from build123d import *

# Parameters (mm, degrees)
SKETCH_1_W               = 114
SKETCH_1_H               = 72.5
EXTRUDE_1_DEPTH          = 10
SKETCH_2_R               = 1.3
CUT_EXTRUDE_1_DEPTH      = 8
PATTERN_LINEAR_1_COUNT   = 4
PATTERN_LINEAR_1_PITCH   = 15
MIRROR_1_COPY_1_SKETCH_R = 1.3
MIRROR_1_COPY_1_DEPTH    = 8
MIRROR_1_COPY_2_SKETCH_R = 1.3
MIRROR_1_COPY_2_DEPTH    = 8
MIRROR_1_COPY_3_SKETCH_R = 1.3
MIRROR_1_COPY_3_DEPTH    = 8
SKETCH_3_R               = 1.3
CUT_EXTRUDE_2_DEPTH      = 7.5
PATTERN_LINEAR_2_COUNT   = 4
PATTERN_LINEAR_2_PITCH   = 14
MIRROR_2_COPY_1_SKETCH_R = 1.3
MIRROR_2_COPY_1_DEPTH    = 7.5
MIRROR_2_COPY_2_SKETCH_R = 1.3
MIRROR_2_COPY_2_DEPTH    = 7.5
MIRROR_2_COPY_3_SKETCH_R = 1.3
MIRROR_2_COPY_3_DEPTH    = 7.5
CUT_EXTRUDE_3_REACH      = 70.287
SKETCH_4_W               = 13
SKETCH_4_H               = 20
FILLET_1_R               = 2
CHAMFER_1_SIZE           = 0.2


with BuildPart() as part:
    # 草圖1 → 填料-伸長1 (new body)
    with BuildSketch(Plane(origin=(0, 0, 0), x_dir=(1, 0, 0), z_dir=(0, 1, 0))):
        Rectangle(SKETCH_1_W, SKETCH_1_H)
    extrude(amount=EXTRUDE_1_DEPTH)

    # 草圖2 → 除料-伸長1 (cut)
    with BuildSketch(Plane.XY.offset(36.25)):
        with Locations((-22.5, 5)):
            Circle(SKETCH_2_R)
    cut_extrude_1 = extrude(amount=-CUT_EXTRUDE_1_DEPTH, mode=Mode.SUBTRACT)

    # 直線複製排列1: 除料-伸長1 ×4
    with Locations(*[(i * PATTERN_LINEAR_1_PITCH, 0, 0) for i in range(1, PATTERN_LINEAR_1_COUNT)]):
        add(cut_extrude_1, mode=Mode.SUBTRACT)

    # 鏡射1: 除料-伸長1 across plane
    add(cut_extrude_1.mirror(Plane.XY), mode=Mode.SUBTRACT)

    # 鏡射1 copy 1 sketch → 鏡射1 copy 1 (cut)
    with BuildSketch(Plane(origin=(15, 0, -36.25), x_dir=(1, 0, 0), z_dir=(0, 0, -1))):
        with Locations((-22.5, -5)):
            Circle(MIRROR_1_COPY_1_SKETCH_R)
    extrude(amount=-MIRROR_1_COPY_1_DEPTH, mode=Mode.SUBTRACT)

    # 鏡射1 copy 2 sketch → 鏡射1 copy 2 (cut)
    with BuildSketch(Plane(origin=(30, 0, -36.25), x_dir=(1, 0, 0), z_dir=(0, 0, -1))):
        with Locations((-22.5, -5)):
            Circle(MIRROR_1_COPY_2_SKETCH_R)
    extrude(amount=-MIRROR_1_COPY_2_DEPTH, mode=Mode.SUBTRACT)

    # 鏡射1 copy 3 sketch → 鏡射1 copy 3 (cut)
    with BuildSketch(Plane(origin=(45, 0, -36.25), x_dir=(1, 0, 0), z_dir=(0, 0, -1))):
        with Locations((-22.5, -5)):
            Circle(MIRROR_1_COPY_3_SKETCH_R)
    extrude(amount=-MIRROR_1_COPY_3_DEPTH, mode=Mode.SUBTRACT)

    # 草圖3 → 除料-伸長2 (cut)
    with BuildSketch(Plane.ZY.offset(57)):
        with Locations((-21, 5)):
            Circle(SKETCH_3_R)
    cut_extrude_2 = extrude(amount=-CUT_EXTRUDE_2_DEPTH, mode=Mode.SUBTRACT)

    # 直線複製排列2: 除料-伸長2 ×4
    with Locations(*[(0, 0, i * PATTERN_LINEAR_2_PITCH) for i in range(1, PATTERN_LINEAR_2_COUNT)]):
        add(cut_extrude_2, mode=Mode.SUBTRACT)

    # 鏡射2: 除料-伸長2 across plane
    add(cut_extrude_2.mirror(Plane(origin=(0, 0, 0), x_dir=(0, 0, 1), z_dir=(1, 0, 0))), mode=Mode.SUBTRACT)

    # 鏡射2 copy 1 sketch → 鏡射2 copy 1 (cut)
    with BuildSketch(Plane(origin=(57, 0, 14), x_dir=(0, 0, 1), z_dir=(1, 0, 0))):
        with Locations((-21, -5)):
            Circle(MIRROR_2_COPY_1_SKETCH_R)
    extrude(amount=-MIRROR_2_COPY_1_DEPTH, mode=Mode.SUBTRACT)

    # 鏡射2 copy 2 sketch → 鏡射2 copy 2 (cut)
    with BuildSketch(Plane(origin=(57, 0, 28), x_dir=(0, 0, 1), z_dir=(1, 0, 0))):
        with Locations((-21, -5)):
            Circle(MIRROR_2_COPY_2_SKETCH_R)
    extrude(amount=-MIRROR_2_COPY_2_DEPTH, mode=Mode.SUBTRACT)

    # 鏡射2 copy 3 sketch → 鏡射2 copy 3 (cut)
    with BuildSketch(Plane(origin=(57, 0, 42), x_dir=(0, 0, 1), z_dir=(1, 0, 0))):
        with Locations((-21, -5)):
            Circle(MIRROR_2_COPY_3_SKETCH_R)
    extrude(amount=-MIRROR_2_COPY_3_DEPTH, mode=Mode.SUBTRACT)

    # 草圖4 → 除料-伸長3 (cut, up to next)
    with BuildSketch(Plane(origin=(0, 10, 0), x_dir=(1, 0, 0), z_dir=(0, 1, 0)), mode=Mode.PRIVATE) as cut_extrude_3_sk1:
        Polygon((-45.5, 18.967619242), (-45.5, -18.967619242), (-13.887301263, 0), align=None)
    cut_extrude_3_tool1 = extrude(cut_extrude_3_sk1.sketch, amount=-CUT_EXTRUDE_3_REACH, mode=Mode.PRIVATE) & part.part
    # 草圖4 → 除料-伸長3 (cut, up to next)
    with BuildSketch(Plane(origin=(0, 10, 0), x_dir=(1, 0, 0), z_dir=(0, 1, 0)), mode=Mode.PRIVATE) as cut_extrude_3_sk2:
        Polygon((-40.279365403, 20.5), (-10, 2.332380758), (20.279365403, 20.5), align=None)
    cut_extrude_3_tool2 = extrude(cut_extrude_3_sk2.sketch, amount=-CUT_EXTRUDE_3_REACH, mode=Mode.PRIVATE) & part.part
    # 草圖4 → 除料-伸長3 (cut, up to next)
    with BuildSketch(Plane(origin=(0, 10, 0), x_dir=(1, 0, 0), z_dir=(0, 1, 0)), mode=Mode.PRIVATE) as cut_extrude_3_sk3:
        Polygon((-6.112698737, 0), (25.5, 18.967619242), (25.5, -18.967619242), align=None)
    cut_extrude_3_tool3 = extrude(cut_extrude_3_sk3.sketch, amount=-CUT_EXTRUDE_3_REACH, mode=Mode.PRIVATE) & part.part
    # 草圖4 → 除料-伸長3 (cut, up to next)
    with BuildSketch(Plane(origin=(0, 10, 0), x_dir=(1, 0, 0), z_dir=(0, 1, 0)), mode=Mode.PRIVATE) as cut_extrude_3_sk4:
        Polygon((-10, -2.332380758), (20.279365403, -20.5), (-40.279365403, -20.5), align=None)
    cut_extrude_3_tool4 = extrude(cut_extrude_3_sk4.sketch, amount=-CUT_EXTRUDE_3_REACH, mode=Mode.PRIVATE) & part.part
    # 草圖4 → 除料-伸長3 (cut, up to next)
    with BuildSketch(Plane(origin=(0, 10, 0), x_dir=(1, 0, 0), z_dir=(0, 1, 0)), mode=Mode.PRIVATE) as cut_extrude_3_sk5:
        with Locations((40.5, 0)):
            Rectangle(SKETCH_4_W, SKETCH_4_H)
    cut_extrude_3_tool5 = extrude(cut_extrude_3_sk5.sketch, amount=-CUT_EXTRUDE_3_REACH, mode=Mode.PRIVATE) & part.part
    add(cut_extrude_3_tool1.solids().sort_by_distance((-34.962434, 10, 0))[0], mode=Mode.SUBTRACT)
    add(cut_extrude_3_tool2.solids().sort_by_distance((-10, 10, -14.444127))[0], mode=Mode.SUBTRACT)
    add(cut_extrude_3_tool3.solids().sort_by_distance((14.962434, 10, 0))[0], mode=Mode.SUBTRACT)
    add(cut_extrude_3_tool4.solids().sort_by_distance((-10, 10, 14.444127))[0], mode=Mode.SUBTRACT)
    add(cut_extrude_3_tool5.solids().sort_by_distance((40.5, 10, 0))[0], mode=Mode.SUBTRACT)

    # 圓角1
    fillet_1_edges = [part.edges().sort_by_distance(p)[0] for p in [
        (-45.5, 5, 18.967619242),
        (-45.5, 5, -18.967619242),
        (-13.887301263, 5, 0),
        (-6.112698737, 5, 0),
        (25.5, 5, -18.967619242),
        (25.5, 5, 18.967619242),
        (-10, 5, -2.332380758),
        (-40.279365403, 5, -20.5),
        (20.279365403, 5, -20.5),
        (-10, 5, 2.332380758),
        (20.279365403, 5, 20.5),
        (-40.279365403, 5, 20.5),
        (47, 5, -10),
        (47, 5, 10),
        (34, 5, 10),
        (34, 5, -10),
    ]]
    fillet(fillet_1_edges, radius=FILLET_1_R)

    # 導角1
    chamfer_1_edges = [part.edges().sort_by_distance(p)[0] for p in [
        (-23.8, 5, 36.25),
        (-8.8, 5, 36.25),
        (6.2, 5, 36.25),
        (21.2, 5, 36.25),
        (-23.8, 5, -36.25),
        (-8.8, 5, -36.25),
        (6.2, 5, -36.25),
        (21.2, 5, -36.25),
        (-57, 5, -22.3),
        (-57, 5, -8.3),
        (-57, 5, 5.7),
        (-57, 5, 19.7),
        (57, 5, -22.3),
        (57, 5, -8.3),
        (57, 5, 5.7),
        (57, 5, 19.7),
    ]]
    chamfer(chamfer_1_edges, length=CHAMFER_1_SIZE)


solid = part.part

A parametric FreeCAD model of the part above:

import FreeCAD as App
import Part
import Sketcher

V = App.Vector
Q = App.Units.Quantity


def edges_at(feature, points):
    """Names of the edges that pass closest to the given points."""
    edges = feature.Shape.Edges
    near = lambda p: min(range(len(edges)), key=lambda i: edges[i].distToShape(Part.Vertex(*p))[0])
    return sorted({f"Edge{near(p) + 1}" for p in points})


def add_polygon(sketch, points):
    """Adds a closed chain of lines whose ends are joined by coincident constraints."""
    first, n = sketch.GeometryCount, len(points)
    for a, b in zip(points, points[1:] + points[:1]):
        sketch.addGeometry(Part.LineSegment(App.Vector(*a, 0), App.Vector(*b, 0)), False)
    for i in range(n):
        sketch.addConstraint(Sketcher.Constraint("Coincident", first + i, 2, first + (i + 1) % n, 1))

doc = App.newDocument("Part")
body = doc.addObject("PartDesign::Body", "Body")

# Sketch on XZ plane
sketch1 = doc.addObject("Sketcher::SketchObject", "Sketch")
body.addObject(sketch1)
sketch1.AttachmentSupport = (doc.XZ_Plane, [""])
sketch1.MapMode = "FlatFace"
add_polygon(sketch1, [(-57, -36), (-57, 36), (57, 36), (57, -36)])  # lines 0-3
sketch1.addConstraint(Sketcher.Constraint("Vertical", 0))
sketch1.addConstraint(Sketcher.Constraint("Horizontal", 1))
sketch1.addConstraint(Sketcher.Constraint("Vertical", 2))
sketch1.addConstraint(Sketcher.Constraint("Horizontal", 3))
sketch1.addConstraint(Sketcher.Constraint("Symmetric", 0, 2, 2, 2, -1, 1))
sketch1.addConstraint(Sketcher.Constraint("DistanceX", 1, 1, 1, 2, Q("114 mm")))
sketch1.addConstraint(Sketcher.Constraint("DistanceY", 0, 1, 0, 2, Q("72.5 mm")))
pad1 = doc.addObject("PartDesign::Pad", "Pad")
body.addObject(pad1)
pad1.Profile = sketch1
pad1.Length = 10
pad1.Reversed = True

# Sketch on XY plane
sketch2 = doc.addObject("Sketcher::SketchObject", "Sketch001")
body.addObject(sketch2)
sketch2.AttachmentSupport = (doc.XY_Plane, [""])
sketch2.MapMode = "FlatFace"
sketch2.AttachmentOffset = App.Placement(V(0, 0, 36.25), App.Rotation())
sketch2.addGeometry(Part.Circle(V(-22.5, 5, 0), V(0, 0, 1), 1.3), False)
sketch2.addConstraint(Sketcher.Constraint("Diameter", 0, Q("2.6 mm")))
sketch2.addConstraint(Sketcher.Constraint("DistanceY", -1, 1, 0, 3, Q("5 mm")))
sketch2.addConstraint(Sketcher.Constraint("DistanceX", 0, 3, -1, 1, Q("22.5 mm")))
pocket1 = doc.addObject("PartDesign::Pocket", "Pocket")
body.addObject(pocket1)
pocket1.Profile = sketch2
pocket1.Length = 8
doc.recompute()

linearpattern = doc.addObject("PartDesign::LinearPattern", "LinearPattern")
body.addObject(linearpattern)
linearpattern.Originals = [pocket1]
linearpattern.Direction = (doc.X_Axis, [""])
linearpattern.Mode = "offset"
linearpattern.Offset = 15
linearpattern.Occurrences = 4
body.Tip = linearpattern
doc.recompute()

mirrored = doc.addObject("PartDesign::Mirrored", "Mirrored")
body.addObject(mirrored)
mirrored.Originals = [pocket1]
mirrored.MirrorPlane = (doc.XY_Plane, [""])
body.Tip = mirrored

# Sketch on XY plane
sketch3 = doc.addObject("Sketcher::SketchObject", "Sketch002")
body.addObject(sketch3)
sketch3.AttachmentSupport = (doc.XY_Plane, [""])
sketch3.MapMode = "FlatFace"
sketch3.AttachmentOffset = App.Placement(V(0, 0, -36.25), App.Rotation())
sketch3.addGeometry(Part.Circle(V(-7.5, 5, 0), V(0, 0, 1), 1.3), False)
sketch3.addConstraint(Sketcher.Constraint("Diameter", 0, Q("2.6 mm")))
sketch3.addConstraint(Sketcher.Constraint("DistanceY", -1, 1, 0, 3, Q("5 mm")))
sketch3.addConstraint(Sketcher.Constraint("DistanceX", 0, 3, -1, 1, Q("7.5 mm")))
pocket2 = doc.addObject("PartDesign::Pocket", "Pocket001")
body.addObject(pocket2)
pocket2.Profile = sketch3
pocket2.Length = 8
pocket2.Reversed = True

# Sketch on XY plane
sketch4 = doc.addObject("Sketcher::SketchObject", "Sketch003")
body.addObject(sketch4)
sketch4.AttachmentSupport = (doc.XY_Plane, [""])
sketch4.MapMode = "FlatFace"
sketch4.AttachmentOffset = App.Placement(V(0, 0, -36.25), App.Rotation())
sketch4.addGeometry(Part.Circle(V(7.5, 5, 0), V(0, 0, 1), 1.3), False)
sketch4.addConstraint(Sketcher.Constraint("Diameter", 0, Q("2.6 mm")))
sketch4.addConstraint(Sketcher.Constraint("DistanceY", -1, 1, 0, 3, Q("5 mm")))
sketch4.addConstraint(Sketcher.Constraint("DistanceX", -1, 1, 0, 3, Q("7.5 mm")))
pocket3 = doc.addObject("PartDesign::Pocket", "Pocket002")
body.addObject(pocket3)
pocket3.Profile = sketch4
pocket3.Length = 8
pocket3.Reversed = True

# Sketch on XY plane
sketch5 = doc.addObject("Sketcher::SketchObject", "Sketch004")
body.addObject(sketch5)
sketch5.AttachmentSupport = (doc.XY_Plane, [""])
sketch5.MapMode = "FlatFace"
sketch5.AttachmentOffset = App.Placement(V(0, 0, -36.25), App.Rotation())
sketch5.addGeometry(Part.Circle(V(22.5, 5, 0), V(0, 0, 1), 1.3), False)
sketch5.addConstraint(Sketcher.Constraint("Diameter", 0, Q("2.6 mm")))
sketch5.addConstraint(Sketcher.Constraint("DistanceY", -1, 1, 0, 3, Q("5 mm")))
sketch5.addConstraint(Sketcher.Constraint("DistanceX", -1, 1, 0, 3, Q("22.5 mm")))
pocket4 = doc.addObject("PartDesign::Pocket", "Pocket003")
body.addObject(pocket4)
pocket4.Profile = sketch5
pocket4.Length = 8
pocket4.Reversed = True

# Sketch on YZ plane
sketch6 = doc.addObject("Sketcher::SketchObject", "Sketch005")
body.addObject(sketch6)
sketch6.AttachmentSupport = (doc.YZ_Plane, [""])
sketch6.MapMode = "FlatFace"
sketch6.AttachmentOffset = App.Placement(V(0, 0, -57), App.Rotation())
sketch6.addGeometry(Part.Circle(V(5, -21, 0), V(0, 0, 1), 1.3), False)
sketch6.addConstraint(Sketcher.Constraint("Diameter", 0, Q("2.6 mm")))
sketch6.addConstraint(Sketcher.Constraint("DistanceX", -1, 1, 0, 3, Q("5 mm")))
sketch6.addConstraint(Sketcher.Constraint("DistanceY", 0, 3, -1, 1, Q("21 mm")))
pocket5 = doc.addObject("PartDesign::Pocket", "Pocket004")
body.addObject(pocket5)
pocket5.Profile = sketch6
pocket5.Length = 7.5
pocket5.Reversed = True
doc.recompute()

linearpattern2 = doc.addObject("PartDesign::LinearPattern", "LinearPattern001")
body.addObject(linearpattern2)
linearpattern2.Originals = [pocket5]
linearpattern2.Direction = (doc.Z_Axis, [""])
linearpattern2.Mode = "offset"
linearpattern2.Offset = 14
linearpattern2.Occurrences = 4
body.Tip = linearpattern2
doc.recompute()

mirrored2 = doc.addObject("PartDesign::Mirrored", "Mirrored001")
body.addObject(mirrored2)
mirrored2.Originals = [pocket5]
mirrored2.MirrorPlane = (doc.YZ_Plane, [""])
body.Tip = mirrored2

# Sketch on YZ plane
sketch7 = doc.addObject("Sketcher::SketchObject", "Sketch006")
body.addObject(sketch7)
sketch7.AttachmentSupport = (doc.YZ_Plane, [""])
sketch7.MapMode = "FlatFace"
sketch7.AttachmentOffset = App.Placement(V(0, 0, 57), App.Rotation())
sketch7.addGeometry(Part.Circle(V(5, -7, 0), V(0, 0, 1), 1.3), False)
sketch7.addConstraint(Sketcher.Constraint("Diameter", 0, Q("2.6 mm")))
sketch7.addConstraint(Sketcher.Constraint("DistanceX", -1, 1, 0, 3, Q("5 mm")))
sketch7.addConstraint(Sketcher.Constraint("DistanceY", 0, 3, -1, 1, Q("7 mm")))
pocket6 = doc.addObject("PartDesign::Pocket", "Pocket005")
body.addObject(pocket6)
pocket6.Profile = sketch7
pocket6.Length = 7.5

# Sketch on YZ plane
sketch8 = doc.addObject("Sketcher::SketchObject", "Sketch007")
body.addObject(sketch8)
sketch8.AttachmentSupport = (doc.YZ_Plane, [""])
sketch8.MapMode = "FlatFace"
sketch8.AttachmentOffset = App.Placement(V(0, 0, 57), App.Rotation())
sketch8.addGeometry(Part.Circle(V(5, 7, 0), V(0, 0, 1), 1.3), False)
sketch8.addConstraint(Sketcher.Constraint("Diameter", 0, Q("2.6 mm")))
sketch8.addConstraint(Sketcher.Constraint("DistanceX", -1, 1, 0, 3, Q("5 mm")))
sketch8.addConstraint(Sketcher.Constraint("DistanceY", -1, 1, 0, 3, Q("7 mm")))
pocket7 = doc.addObject("PartDesign::Pocket", "Pocket006")
body.addObject(pocket7)
pocket7.Profile = sketch8
pocket7.Length = 7.5

# Sketch on YZ plane
sketch9 = doc.addObject("Sketcher::SketchObject", "Sketch008")
body.addObject(sketch9)
sketch9.AttachmentSupport = (doc.YZ_Plane, [""])
sketch9.MapMode = "FlatFace"
sketch9.AttachmentOffset = App.Placement(V(0, 0, 57), App.Rotation())
sketch9.addGeometry(Part.Circle(V(5, 21, 0), V(0, 0, 1), 1.3), False)
sketch9.addConstraint(Sketcher.Constraint("Diameter", 0, Q("2.6 mm")))
sketch9.addConstraint(Sketcher.Constraint("DistanceX", -1, 1, 0, 3, Q("5 mm")))
sketch9.addConstraint(Sketcher.Constraint("DistanceY", -1, 1, 0, 3, Q("21 mm")))
pocket8 = doc.addObject("PartDesign::Pocket", "Pocket007")
body.addObject(pocket8)
pocket8.Profile = sketch9
pocket8.Length = 7.5

# Sketch on XZ plane
sketch10 = doc.addObject("Sketcher::SketchObject", "Sketch009")
body.addObject(sketch10)
sketch10.AttachmentSupport = (doc.XZ_Plane, [""])
sketch10.MapMode = "FlatFace"
sketch10.AttachmentOffset = App.Placement(V(0, 0, -10), App.Rotation())
add_polygon(sketch10, [(-46, -19), (-46, 19), (-14, 0)])  # lines 0-2
sketch10.addConstraint(Sketcher.Constraint("Vertical", 0))
sketch10.addConstraint(Sketcher.Constraint("PointOnObject", 1, 2, -1))
sketch10.addConstraint(Sketcher.Constraint("Equal", 1, 2))
sketch10.addConstraint(Sketcher.Constraint("DistanceX", 0, 2, -1, 1, Q("45.5 mm")))
sketch10.addConstraint(Sketcher.Constraint("DistanceY", 0, 1, 0, 2, Q("37.935238 mm")))
sketch10.addConstraint(Sketcher.Constraint("DistanceX", 1, 2, -1, 1, Q("13.887301 mm")))
pocket9 = doc.addObject("PartDesign::Pocket", "Pocket008")
body.addObject(pocket9)
pocket9.Profile = sketch10
pocket9.Type = "UpToFirst"
pocket9.Reversed = True

# Sketch on XZ plane
sketch11 = doc.addObject("Sketcher::SketchObject", "Sketch010")
body.addObject(sketch11)
sketch11.AttachmentSupport = (doc.XZ_Plane, [""])
sketch11.MapMode = "FlatFace"
sketch11.AttachmentOffset = App.Placement(V(0, 0, -10), App.Rotation())
add_polygon(sketch11, [(-40, -20), (-10, -2), (20, -20)])  # lines 0-2
sketch11.addConstraint(Sketcher.Constraint("Horizontal", 2))
sketch11.addConstraint(Sketcher.Constraint("Equal", 0, 1))
sketch11.addConstraint(Sketcher.Constraint("DistanceX", 0, 2, -1, 1, Q("10 mm")))
sketch11.addConstraint(Sketcher.Constraint("DistanceY", 1, 2, -1, 1, Q("20.5 mm")))
sketch11.addConstraint(Sketcher.Constraint("DistanceX", 2, 2, 2, 1, Q("60.558731 mm")))
sketch11.addConstraint(Sketcher.Constraint("DistanceY", 0, 2, -1, 1, Q("2.332381 mm")))
pocket10 = doc.addObject("PartDesign::Pocket", "Pocket009")
body.addObject(pocket10)
pocket10.Profile = sketch11
pocket10.Type = "UpToFirst"
pocket10.Reversed = True

# Sketch on XZ plane
sketch12 = doc.addObject("Sketcher::SketchObject", "Sketch011")
body.addObject(sketch12)
sketch12.AttachmentSupport = (doc.XZ_Plane, [""])
sketch12.MapMode = "FlatFace"
sketch12.AttachmentOffset = App.Placement(V(0, 0, -10), App.Rotation())
add_polygon(sketch12, [(26, -19), (-6, 0), (26, 19)])  # lines 0-2
sketch12.addConstraint(Sketcher.Constraint("Vertical", 2))
sketch12.addConstraint(Sketcher.Constraint("PointOnObject", 0, 2, -1))
sketch12.addConstraint(Sketcher.Constraint("Equal", 0, 1))
sketch12.addConstraint(Sketcher.Constraint("DistanceX", -1, 1, 1, 2, Q("25.5 mm")))
sketch12.addConstraint(Sketcher.Constraint("DistanceY", 2, 2, 2, 1, Q("37.935238 mm")))
sketch12.addConstraint(Sketcher.Constraint("DistanceX", 0, 2, -1, 1, Q("6.112699 mm")))
pocket11 = doc.addObject("PartDesign::Pocket", "Pocket010")
body.addObject(pocket11)
pocket11.Profile = sketch12
pocket11.Type = "UpToFirst"
pocket11.Reversed = True

# Sketch on XZ plane
sketch13 = doc.addObject("Sketcher::SketchObject", "Sketch012")
body.addObject(sketch13)
sketch13.AttachmentSupport = (doc.XZ_Plane, [""])
sketch13.MapMode = "FlatFace"
sketch13.AttachmentOffset = App.Placement(V(0, 0, -10), App.Rotation())
add_polygon(sketch13, [(20, 20), (-10, 2), (-40, 20)])  # lines 0-2
sketch13.addConstraint(Sketcher.Constraint("Horizontal", 2))
sketch13.addConstraint(Sketcher.Constraint("Equal", 0, 1))
sketch13.addConstraint(Sketcher.Constraint("DistanceX", 0, 2, -1, 1, Q("10 mm")))
sketch13.addConstraint(Sketcher.Constraint("DistanceY", -1, 1, 1, 2, Q("20.5 mm")))
sketch13.addConstraint(Sketcher.Constraint("DistanceX", 2, 1, 2, 2, Q("60.558731 mm")))
sketch13.addConstraint(Sketcher.Constraint("DistanceY", -1, 1, 0, 2, Q("2.332381 mm")))
pocket12 = doc.addObject("PartDesign::Pocket", "Pocket011")
body.addObject(pocket12)
pocket12.Profile = sketch13
pocket12.Type = "UpToFirst"
pocket12.Reversed = True

# Sketch on XZ plane
sketch14 = doc.addObject("Sketcher::SketchObject", "Sketch013")
body.addObject(sketch14)
sketch14.AttachmentSupport = (doc.XZ_Plane, [""])
sketch14.MapMode = "FlatFace"
sketch14.AttachmentOffset = App.Placement(V(0, 0, -10), App.Rotation())
add_polygon(sketch14, [(34, -10), (34, 10), (47, 10), (47, -10)])  # lines 0-3
sketch14.addConstraint(Sketcher.Constraint("Vertical", 0))
sketch14.addConstraint(Sketcher.Constraint("Horizontal", 1))
sketch14.addConstraint(Sketcher.Constraint("Vertical", 2))
sketch14.addConstraint(Sketcher.Constraint("Horizontal", 3))
sketch14.addConstraint(Sketcher.Constraint("DistanceX", 1, 1, 1, 2, Q("13 mm")))
sketch14.addConstraint(Sketcher.Constraint("DistanceY", 0, 1, 0, 2, Q("20 mm")))
sketch14.addConstraint(Sketcher.Constraint("DistanceX", -1, 1, 0, 2, Q("34 mm")))
sketch14.addConstraint(Sketcher.Constraint("DistanceY", -1, 1, 0, 2, Q("10 mm")))
pocket13 = doc.addObject("PartDesign::Pocket", "Pocket012")
body.addObject(pocket13)
pocket13.Profile = sketch14
pocket13.Type = "UpToFirst"
pocket13.Reversed = True
doc.recompute()

fillet = doc.addObject("PartDesign::Fillet", "Fillet")
body.addObject(fillet)
fillet.Base = (pocket13, edges_at(pocket13, [
    (-45.5, 5, 18.968),
    (-45.5, 5, -18.968),
    (-13.887, 5, 0),
    (-6.113, 5, 0),
    (25.5, 5, -18.968),
    (25.5, 5, 18.968),
    (-10, 5, -2.332),
    (-40.279, 5, -20.5),
    (20.279, 5, -20.5),
    (-10, 5, 2.332),
    (20.279, 5, 20.5),
    (-40.279, 5, 20.5),
    (47, 5, -10),
    (47, 5, 10),
    (34, 5, 10),
    (34, 5, -10),
]))
fillet.Radius = 2
doc.recompute()

chamfer = doc.addObject("PartDesign::Chamfer", "Chamfer")
body.addObject(chamfer)
chamfer.Base = (fillet, edges_at(fillet, [
    (-23.8, 5, 36.25),
    (-8.8, 5, 36.25),
    (6.2, 5, 36.25),
    (21.2, 5, 36.25),
    (-23.8, 5, -36.25),
    (-8.8, 5, -36.25),
    (6.2, 5, -36.25),
    (21.2, 5, -36.25),
    (-57, 5, -22.3),
    (-57, 5, -8.3),
    (-57, 5, 5.7),
    (-57, 5, 19.7),
    (57, 5, -22.3),
    (57, 5, -8.3),
    (57, 5, 5.7),
    (57, 5, 19.7),
]))
chamfer.Size = 0.2

doc.recompute()
